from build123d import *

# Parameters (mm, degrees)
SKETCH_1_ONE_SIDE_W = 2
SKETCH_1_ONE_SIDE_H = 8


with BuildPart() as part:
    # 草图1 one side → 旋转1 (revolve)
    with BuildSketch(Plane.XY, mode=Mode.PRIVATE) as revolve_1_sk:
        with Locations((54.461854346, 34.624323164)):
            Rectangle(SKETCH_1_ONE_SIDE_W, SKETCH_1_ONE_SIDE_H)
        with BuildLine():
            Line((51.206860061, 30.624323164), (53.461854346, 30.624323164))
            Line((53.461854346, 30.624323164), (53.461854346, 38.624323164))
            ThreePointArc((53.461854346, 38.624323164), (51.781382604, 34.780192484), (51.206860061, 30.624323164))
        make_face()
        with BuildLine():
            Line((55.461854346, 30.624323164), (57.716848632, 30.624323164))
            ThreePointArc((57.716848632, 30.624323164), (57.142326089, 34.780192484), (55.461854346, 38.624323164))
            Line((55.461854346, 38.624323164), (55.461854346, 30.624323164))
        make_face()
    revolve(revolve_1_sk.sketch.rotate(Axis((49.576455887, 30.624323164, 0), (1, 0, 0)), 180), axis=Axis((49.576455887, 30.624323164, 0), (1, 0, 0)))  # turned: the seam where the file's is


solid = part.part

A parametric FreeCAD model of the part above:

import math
import FreeCAD as App
import Part
import Sketcher
Q = App.Units.Quantity

doc = App.newDocument("Part")
params = doc.addObject("Spreadsheet::Sheet", "Params")
for row, (alias, value) in enumerate([
    ("sketch1_width", "2 mm"),
    ("revolution_angle", "360 deg"),
], start=1):
    params.set(f"A{row}", alias)
    params.set(f"B{row}", "=" + value)
    params.setAlias(f"B{row}", alias)

body = doc.addObject("PartDesign::Body", "Body")

# Sketch on XY plane
sketch1 = body.newObject("Sketcher::SketchObject", "Sketch")
sketch1.AttachmentSupport = (doc.getObject("XY_Plane"), [""])
sketch1.MapMode = "FlatFace"
sketch1.addGeometry(Part.LineSegment(App.Vector(55.5, 38.6, 0), App.Vector(53.5, 38.6, 0)), False)
sketch1.addGeometry(Part.ArcOfCircle(Part.Circle(App.Vector(66.5, 30.6, 0), App.Vector(0, 0, 1), 15.3), math.radians(149), math.radians(180)), False)
sketch1.addGeometry(Part.LineSegment(App.Vector(51.2, 30.6, 0), App.Vector(57.7, 30.6, 0)), False)
sketch1.addGeometry(Part.ArcOfCircle(Part.Circle(App.Vector(42.4, 30.6, 0), App.Vector(0, 0, 1), 15.3), math.radians(0), math.radians(31)), False)
sketch1.addGeometry(Part.LineSegment(App.Vector(42.4, 30.6, 0), App.Vector(66.5, 30.6, 0)), True)  # axis
sketch1.addConstraint(Sketcher.Constraint("Coincident", 0, 2, 1, 1))
sketch1.addConstraint(Sketcher.Constraint("Coincident", 1, 2, 2, 1))
sketch1.addConstraint(Sketcher.Constraint("Coincident", 2, 2, 3, 1))
sketch1.addConstraint(Sketcher.Constraint("Coincident", 3, 2, 0, 1))
sketch1.addConstraint(Sketcher.Constraint("Horizontal", 0))
sketch1.addConstraint(Sketcher.Constraint("Horizontal", 2))
sketch1.addConstraint(Sketcher.Constraint("Horizontal", 4))
sketch1.addConstraint(Sketcher.Constraint("Coincident", 4, 1, 3, 3))
sketch1.addConstraint(Sketcher.Constraint("Coincident", 4, 2, 1, 3))
sketch1.addConstraint(Sketcher.Constraint("Equal", 1, 3))
sketch1.addConstraint(Sketcher.Constraint("Horizontal", 3, 3, 1, 2))
sketch1.addConstraint(Sketcher.Constraint("DistanceX", 0, 2, 0, 1, Q("2 mm")))
sketch1.addConstraint(Sketcher.Constraint("DistanceY", 3, 3, 0, 2, Q("8 mm")))
sketch1.addConstraint(Sketcher.Constraint("Radius", 1, Q("15.31822 mm")))
sketch1.addConstraint(Sketcher.Constraint("DistanceX", -1, 1, 1, 3, Q("66.525081 mm")))
sketch1.addConstraint(Sketcher.Constraint("DistanceY", -1, 1, 1, 3, Q("30.624323 mm")))
sketch1.setExpression("Constraints[11]", "Params.sketch1_width")
revolution = body.newObject("PartDesign::Revolution", "Revolution")
revolution.Profile = sketch1
revolution.ReferenceAxis = (sketch1, ["Axis0"])
revolution.setExpression("Angle", "Params.revolution_angle")

doc.recompute()
